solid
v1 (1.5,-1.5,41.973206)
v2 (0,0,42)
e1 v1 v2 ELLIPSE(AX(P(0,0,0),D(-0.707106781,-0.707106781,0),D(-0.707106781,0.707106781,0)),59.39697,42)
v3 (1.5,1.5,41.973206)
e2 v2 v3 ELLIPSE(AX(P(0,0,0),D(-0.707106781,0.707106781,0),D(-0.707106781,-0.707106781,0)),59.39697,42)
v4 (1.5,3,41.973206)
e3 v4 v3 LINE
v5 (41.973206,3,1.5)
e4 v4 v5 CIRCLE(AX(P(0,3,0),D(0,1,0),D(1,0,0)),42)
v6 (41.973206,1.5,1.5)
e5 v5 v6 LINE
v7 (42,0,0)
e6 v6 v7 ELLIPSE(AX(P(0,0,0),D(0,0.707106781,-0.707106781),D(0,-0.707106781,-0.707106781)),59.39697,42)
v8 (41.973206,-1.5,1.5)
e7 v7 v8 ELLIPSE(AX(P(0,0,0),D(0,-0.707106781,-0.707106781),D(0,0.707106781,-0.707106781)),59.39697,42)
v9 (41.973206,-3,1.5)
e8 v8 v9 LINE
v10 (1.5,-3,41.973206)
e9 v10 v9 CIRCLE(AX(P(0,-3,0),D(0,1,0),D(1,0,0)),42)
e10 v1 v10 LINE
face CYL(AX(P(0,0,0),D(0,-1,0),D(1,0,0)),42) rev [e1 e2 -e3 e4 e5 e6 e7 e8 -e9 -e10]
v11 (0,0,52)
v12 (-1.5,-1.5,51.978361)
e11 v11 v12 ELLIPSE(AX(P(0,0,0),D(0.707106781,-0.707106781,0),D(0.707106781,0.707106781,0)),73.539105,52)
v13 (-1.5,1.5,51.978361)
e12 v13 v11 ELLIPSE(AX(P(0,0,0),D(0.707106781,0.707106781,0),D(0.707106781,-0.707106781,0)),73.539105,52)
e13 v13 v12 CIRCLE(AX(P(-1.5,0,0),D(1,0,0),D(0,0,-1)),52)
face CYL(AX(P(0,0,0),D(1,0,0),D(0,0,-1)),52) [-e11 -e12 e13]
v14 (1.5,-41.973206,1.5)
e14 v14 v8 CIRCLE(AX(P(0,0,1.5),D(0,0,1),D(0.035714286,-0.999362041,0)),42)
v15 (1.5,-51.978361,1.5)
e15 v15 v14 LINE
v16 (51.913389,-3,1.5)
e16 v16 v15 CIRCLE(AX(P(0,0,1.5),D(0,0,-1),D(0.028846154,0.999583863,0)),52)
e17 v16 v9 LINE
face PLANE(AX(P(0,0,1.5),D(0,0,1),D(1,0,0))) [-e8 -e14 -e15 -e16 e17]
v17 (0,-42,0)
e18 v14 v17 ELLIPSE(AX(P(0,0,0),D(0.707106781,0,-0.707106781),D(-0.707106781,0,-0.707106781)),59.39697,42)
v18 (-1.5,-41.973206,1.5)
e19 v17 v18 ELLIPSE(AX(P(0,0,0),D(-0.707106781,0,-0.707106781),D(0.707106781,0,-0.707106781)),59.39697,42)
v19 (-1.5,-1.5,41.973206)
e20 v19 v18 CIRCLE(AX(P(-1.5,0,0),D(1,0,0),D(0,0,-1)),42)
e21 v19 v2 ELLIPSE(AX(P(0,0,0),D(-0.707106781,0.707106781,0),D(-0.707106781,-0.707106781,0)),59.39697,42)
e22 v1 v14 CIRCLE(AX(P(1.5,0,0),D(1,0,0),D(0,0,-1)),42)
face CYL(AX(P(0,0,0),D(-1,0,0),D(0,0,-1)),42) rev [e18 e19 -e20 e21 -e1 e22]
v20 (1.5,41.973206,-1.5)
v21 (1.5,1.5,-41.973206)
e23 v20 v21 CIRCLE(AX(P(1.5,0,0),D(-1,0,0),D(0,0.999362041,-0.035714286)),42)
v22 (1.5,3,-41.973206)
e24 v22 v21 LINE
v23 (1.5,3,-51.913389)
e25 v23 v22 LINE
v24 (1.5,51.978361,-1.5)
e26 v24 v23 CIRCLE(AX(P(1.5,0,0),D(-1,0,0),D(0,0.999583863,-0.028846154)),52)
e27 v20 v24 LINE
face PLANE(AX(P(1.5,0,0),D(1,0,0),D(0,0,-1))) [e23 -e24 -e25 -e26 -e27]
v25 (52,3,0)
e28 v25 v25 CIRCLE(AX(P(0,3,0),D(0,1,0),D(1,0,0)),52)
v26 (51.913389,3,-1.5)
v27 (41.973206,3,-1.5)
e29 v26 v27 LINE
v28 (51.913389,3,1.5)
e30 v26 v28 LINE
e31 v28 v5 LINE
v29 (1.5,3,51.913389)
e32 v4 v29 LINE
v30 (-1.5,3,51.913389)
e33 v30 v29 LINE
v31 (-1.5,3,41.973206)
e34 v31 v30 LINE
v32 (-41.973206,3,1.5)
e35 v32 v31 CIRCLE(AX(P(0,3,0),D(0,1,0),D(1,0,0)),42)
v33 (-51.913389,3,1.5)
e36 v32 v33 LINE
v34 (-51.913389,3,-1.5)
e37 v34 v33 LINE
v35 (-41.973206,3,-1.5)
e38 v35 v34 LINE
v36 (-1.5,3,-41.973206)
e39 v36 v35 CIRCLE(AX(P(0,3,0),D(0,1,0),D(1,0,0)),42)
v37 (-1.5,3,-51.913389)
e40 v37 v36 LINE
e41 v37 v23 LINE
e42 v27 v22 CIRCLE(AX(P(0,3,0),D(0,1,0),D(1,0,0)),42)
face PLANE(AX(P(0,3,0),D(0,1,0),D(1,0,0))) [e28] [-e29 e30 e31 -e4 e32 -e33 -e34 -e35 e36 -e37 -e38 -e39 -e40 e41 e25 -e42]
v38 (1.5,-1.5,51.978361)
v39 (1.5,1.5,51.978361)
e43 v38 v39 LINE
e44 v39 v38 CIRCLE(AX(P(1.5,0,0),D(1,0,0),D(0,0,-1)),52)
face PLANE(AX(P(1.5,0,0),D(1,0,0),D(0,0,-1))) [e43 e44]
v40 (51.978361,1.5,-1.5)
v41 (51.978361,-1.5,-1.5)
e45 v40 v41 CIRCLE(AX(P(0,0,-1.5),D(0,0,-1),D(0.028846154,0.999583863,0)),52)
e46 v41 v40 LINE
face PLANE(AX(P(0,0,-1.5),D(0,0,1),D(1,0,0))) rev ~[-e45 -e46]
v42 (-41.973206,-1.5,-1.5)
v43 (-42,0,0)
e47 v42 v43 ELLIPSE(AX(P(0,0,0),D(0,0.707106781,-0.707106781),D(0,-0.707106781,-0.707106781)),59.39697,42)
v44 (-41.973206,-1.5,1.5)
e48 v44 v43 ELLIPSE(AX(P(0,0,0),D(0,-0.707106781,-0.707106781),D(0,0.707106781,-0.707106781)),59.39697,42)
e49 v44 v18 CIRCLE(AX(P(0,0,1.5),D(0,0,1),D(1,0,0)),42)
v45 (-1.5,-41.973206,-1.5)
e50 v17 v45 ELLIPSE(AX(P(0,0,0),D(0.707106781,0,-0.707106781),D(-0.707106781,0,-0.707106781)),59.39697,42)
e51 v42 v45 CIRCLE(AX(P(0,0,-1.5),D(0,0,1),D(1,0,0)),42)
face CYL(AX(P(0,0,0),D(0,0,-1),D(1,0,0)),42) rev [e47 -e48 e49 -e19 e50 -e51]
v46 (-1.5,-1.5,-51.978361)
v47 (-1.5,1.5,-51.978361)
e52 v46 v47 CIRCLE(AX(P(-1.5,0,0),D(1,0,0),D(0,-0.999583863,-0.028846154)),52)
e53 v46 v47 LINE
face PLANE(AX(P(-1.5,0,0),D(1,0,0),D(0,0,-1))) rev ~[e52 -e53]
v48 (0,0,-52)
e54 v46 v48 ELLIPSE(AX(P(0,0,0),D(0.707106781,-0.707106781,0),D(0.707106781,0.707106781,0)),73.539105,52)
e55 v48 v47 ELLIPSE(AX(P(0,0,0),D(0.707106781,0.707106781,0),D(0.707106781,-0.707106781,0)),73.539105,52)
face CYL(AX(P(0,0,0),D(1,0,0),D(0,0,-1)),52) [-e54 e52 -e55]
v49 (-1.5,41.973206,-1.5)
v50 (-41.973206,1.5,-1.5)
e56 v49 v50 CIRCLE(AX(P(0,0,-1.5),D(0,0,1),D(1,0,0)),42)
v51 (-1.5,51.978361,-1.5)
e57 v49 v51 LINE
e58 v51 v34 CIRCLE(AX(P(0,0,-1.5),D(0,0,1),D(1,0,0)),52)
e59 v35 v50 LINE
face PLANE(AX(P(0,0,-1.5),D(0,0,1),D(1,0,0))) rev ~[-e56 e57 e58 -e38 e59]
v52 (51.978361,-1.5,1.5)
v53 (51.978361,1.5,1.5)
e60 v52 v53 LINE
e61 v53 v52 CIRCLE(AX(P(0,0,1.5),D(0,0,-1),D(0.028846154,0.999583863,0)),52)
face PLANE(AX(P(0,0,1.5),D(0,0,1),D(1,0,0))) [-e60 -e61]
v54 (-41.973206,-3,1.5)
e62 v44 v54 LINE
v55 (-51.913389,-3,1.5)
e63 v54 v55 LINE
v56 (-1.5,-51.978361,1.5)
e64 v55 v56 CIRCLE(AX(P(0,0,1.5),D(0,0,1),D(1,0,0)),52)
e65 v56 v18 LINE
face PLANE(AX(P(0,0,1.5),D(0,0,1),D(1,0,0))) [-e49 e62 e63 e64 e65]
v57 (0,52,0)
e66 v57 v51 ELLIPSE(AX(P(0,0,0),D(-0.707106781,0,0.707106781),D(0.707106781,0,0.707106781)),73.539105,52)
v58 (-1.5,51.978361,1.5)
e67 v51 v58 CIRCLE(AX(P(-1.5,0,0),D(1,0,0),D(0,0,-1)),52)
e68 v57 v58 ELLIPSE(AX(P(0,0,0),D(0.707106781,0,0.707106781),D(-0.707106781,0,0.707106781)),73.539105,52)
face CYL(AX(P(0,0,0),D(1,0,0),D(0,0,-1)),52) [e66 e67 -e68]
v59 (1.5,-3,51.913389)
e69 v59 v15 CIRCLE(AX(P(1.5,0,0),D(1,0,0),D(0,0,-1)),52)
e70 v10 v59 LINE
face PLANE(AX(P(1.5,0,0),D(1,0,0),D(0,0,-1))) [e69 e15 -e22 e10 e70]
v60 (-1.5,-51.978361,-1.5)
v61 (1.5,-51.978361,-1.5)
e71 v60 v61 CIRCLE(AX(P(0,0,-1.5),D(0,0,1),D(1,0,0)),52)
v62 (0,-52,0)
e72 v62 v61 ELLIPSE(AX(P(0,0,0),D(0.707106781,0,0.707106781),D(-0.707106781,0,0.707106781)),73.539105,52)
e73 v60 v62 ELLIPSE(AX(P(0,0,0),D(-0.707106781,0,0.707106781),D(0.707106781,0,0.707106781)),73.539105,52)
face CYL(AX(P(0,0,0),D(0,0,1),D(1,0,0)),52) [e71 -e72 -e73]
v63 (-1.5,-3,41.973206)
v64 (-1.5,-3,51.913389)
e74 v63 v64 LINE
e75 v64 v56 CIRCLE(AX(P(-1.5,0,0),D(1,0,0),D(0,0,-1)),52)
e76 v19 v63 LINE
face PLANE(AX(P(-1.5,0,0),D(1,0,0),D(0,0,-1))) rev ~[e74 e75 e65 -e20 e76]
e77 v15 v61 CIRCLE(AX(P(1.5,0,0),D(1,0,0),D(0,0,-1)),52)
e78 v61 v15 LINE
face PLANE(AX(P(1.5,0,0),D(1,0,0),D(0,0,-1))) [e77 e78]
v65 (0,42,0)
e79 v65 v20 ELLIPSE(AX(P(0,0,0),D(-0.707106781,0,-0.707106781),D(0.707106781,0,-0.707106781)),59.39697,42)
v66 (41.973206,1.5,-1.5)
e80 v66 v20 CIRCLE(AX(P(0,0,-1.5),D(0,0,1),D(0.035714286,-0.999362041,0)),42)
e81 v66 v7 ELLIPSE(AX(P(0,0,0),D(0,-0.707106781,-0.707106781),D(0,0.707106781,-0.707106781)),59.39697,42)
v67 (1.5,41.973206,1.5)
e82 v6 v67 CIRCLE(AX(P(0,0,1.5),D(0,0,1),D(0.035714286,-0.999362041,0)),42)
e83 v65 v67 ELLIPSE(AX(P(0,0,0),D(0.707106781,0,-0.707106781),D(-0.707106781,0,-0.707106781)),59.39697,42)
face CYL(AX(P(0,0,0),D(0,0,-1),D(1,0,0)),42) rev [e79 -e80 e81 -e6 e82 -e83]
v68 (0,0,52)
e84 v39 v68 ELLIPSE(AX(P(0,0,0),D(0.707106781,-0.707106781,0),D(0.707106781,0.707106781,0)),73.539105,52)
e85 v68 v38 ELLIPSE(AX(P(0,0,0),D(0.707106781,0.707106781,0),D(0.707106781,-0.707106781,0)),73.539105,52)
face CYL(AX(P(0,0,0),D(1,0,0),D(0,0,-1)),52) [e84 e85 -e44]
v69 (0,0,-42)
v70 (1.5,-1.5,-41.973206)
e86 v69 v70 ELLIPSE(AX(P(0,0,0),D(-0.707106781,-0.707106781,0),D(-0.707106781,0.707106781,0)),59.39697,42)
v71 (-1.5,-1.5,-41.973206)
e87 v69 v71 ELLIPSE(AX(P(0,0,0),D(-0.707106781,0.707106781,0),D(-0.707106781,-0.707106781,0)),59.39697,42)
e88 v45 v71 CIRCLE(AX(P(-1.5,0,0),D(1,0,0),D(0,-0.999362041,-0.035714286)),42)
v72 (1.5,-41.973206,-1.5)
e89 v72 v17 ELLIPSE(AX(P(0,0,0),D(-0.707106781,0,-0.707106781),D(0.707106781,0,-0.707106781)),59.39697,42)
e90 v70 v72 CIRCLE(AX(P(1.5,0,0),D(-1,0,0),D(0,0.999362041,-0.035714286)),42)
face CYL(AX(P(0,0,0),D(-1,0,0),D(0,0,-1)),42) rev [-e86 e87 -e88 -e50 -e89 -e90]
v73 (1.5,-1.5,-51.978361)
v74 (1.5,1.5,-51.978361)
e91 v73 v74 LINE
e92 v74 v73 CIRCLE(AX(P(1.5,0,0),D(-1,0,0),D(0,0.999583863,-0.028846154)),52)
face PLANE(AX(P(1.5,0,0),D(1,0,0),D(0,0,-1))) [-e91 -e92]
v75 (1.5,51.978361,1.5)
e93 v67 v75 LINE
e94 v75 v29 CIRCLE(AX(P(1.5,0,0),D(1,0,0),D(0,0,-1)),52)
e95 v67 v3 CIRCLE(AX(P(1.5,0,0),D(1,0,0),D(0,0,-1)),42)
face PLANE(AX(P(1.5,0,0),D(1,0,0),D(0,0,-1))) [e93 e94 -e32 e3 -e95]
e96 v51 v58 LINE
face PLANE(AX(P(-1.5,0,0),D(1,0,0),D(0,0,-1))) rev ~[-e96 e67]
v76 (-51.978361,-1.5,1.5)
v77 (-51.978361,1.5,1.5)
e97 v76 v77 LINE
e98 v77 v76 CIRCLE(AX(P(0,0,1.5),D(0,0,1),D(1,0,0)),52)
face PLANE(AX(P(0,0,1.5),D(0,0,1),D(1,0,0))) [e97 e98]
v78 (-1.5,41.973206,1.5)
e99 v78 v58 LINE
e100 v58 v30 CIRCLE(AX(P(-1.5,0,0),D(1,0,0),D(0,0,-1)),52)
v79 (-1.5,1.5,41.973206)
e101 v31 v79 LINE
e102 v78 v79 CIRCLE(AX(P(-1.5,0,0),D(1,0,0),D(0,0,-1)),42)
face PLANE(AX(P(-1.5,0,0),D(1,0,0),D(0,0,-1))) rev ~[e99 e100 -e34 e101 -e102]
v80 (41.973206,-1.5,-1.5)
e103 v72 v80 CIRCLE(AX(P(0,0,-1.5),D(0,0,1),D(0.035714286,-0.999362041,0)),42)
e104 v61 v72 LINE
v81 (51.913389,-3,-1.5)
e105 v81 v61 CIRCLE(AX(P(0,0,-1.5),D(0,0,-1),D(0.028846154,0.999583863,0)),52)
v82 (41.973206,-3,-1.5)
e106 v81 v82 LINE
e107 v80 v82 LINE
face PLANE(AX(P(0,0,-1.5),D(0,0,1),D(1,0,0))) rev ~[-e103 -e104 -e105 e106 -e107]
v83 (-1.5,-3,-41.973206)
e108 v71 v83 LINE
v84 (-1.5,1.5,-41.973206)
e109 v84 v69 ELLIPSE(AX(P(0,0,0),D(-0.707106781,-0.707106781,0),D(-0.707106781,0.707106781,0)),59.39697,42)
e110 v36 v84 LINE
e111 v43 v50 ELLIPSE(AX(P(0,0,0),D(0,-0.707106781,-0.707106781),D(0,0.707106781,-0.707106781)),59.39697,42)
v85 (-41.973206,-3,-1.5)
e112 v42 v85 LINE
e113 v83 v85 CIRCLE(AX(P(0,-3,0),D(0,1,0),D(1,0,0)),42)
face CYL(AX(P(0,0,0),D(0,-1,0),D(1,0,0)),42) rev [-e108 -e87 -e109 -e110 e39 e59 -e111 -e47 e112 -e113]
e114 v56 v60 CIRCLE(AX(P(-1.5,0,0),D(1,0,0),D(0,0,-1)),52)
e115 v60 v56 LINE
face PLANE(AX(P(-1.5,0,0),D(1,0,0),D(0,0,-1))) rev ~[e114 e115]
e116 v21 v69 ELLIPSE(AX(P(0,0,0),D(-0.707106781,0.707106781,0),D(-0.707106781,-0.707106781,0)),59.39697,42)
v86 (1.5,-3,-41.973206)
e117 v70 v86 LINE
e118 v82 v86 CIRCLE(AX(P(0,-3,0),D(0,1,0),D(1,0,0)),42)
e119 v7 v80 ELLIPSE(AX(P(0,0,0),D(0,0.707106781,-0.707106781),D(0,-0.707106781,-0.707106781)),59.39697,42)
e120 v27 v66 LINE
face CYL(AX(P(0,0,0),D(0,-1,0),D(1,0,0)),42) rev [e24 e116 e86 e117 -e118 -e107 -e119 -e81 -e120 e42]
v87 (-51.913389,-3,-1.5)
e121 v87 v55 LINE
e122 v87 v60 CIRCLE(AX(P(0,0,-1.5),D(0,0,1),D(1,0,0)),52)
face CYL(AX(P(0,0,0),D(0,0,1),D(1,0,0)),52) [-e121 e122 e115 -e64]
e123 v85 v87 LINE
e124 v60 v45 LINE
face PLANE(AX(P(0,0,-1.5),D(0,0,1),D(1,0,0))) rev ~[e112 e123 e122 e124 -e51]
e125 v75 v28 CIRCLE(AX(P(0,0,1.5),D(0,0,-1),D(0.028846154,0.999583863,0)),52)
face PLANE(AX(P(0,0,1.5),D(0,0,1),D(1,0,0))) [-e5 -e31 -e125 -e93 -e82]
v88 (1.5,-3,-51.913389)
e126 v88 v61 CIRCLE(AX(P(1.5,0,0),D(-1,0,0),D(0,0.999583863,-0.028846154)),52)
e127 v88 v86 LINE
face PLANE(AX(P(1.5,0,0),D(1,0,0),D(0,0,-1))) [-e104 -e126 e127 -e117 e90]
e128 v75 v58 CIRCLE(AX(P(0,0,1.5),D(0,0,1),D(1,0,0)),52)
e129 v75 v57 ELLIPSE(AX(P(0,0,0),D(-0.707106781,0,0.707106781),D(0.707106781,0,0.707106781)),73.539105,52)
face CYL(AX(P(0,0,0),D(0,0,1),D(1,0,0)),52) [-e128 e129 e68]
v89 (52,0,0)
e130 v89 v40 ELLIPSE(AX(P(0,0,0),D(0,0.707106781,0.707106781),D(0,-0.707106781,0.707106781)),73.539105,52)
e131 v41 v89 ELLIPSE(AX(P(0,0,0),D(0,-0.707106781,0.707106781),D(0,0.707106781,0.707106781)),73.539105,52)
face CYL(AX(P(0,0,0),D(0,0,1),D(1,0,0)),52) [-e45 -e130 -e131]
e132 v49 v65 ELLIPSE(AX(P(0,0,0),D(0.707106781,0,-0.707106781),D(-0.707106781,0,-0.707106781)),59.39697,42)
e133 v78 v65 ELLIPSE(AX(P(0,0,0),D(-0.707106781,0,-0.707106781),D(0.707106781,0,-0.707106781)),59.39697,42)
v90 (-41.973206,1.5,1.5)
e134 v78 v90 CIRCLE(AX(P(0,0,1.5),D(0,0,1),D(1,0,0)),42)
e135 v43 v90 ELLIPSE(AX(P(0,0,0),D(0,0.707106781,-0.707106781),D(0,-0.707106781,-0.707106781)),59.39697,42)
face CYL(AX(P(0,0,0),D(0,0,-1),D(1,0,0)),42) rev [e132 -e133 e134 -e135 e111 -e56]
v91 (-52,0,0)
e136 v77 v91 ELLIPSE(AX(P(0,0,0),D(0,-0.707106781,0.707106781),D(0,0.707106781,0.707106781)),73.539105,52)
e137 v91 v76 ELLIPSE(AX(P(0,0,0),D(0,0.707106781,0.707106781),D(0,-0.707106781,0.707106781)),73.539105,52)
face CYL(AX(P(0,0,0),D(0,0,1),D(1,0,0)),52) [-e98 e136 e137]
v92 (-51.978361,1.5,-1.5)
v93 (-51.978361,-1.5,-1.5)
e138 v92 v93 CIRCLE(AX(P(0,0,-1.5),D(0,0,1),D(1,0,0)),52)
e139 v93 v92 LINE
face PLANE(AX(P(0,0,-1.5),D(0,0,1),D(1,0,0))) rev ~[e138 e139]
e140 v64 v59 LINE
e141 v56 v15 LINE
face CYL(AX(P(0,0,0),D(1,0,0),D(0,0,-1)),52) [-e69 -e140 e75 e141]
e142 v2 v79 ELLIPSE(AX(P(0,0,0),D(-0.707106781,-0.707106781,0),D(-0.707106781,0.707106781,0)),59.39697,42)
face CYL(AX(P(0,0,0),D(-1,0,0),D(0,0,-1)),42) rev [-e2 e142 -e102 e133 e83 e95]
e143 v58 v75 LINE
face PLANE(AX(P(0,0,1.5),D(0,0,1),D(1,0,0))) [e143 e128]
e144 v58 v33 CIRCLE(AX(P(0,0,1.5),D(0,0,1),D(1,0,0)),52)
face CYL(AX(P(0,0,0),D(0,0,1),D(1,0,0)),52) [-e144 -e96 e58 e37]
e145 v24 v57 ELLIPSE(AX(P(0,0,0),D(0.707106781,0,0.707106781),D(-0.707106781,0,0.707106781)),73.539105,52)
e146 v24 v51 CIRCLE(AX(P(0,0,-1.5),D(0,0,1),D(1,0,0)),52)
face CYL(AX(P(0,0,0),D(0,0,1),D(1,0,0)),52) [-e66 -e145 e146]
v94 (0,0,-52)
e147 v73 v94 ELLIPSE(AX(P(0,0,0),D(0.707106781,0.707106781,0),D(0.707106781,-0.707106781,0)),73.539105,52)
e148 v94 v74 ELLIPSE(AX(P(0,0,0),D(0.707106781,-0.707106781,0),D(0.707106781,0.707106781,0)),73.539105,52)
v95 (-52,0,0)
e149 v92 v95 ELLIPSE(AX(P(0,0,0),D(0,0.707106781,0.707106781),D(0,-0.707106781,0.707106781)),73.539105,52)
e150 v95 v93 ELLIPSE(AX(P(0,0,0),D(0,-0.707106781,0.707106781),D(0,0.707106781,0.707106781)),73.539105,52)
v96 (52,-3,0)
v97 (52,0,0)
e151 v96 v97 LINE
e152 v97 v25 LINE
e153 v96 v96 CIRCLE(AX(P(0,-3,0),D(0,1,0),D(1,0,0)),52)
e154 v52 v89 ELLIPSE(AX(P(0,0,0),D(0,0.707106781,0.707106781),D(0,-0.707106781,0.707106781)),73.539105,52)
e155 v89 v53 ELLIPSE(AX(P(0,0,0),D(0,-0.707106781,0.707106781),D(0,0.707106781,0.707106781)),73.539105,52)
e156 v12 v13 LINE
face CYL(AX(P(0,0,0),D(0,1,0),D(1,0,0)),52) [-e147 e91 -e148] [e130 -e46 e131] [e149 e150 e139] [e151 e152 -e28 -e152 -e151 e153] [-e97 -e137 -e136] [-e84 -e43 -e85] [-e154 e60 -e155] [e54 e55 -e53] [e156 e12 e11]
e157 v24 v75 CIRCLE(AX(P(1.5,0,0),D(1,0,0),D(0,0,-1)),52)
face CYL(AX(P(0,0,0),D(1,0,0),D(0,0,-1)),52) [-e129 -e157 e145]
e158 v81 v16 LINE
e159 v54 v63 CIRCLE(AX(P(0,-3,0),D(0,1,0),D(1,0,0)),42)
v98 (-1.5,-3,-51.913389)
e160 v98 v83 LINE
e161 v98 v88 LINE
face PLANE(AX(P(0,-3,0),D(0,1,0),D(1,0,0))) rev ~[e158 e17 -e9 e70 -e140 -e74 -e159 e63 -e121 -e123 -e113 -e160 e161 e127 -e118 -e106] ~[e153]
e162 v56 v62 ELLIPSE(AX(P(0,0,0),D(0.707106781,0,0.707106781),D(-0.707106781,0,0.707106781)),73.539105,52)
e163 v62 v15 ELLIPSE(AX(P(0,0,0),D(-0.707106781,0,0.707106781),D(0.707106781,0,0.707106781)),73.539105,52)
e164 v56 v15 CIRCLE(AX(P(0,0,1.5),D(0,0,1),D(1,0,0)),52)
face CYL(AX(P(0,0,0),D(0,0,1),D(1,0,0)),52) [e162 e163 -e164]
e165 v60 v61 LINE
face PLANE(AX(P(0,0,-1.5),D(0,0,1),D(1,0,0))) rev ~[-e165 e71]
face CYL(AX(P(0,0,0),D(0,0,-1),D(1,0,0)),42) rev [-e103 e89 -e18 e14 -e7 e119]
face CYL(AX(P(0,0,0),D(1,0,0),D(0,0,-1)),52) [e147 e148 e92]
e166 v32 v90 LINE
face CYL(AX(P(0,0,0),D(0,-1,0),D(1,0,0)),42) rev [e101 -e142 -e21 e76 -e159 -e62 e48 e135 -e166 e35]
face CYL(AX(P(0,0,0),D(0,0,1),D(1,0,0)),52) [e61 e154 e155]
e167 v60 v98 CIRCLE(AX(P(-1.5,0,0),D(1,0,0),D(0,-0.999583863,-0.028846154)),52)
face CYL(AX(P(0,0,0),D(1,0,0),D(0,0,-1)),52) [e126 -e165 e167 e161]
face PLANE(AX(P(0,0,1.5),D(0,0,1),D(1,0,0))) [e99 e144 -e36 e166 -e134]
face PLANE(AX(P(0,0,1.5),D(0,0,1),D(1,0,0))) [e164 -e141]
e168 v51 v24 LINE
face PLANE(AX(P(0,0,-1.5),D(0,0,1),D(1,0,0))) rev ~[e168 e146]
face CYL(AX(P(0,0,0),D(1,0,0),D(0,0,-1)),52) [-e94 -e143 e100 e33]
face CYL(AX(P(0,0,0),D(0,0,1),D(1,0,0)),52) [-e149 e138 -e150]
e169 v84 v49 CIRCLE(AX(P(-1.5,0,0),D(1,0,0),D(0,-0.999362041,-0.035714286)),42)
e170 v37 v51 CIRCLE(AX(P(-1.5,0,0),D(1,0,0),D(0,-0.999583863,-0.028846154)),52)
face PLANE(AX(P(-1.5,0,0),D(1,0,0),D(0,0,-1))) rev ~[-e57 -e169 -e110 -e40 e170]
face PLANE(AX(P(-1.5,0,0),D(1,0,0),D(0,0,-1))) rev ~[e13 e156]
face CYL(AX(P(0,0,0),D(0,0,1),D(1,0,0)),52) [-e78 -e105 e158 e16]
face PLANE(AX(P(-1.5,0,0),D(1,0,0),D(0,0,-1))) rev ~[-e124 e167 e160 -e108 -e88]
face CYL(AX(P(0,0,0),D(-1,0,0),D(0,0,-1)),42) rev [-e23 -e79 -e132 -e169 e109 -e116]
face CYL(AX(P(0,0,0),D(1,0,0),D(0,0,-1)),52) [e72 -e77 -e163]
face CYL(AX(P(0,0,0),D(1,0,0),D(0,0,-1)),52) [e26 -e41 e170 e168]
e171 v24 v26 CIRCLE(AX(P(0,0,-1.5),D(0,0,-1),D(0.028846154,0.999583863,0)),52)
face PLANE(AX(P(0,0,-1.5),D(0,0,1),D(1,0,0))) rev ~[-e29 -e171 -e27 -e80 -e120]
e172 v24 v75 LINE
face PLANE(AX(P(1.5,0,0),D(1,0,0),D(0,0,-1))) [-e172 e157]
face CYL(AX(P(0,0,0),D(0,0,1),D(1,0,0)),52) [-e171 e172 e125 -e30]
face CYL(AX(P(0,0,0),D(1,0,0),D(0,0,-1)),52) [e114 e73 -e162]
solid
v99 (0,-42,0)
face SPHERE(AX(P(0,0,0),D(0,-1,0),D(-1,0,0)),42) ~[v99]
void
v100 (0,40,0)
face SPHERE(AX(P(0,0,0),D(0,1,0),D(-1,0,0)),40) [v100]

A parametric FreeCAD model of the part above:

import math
import FreeCAD as App
import Part
import Sketcher

V = App.Vector
Q = App.Units.Quantity

doc = App.newDocument("Part")
body = doc.addObject("PartDesign::Body", "Body")

# Sketch on XY plane
sketch1 = body.newObject("Sketcher::SketchObject", "Sketch")
sketch1.AttachmentSupport = (doc.getObject("XY_Plane"), [""])
sketch1.MapMode = "FlatFace"
sketch1.addGeometry([
    Part.LineSegment(V(0, 40, 0), V(0, 42, 0)),
    Part.ArcOfCircle(Part.Circle(V(0, 0, 0), V(0, 0, 1), 42), math.radians(90), math.radians(270)),
    Part.LineSegment(V(0, -42, 0), V(0, -40, 0)),
    Part.ArcOfCircle(Part.Circle(V(0, 0, 0), V(0, 0, 1), 40), math.radians(90), math.radians(270)),
], False)
sketch1.addConstraint([
    Sketcher.Constraint("Coincident", 0, 2, 1, 1),
    Sketcher.Constraint("Coincident", 1, 2, 2, 1),
    Sketcher.Constraint("Coincident", 2, 2, 3, 2),
    Sketcher.Constraint("Coincident", 3, 1, 0, 1),
    Sketcher.Constraint("Vertical", 0),
    Sketcher.Constraint("Vertical", 2),
    Sketcher.Constraint("Coincident", 1, 3, -1, 1),
    Sketcher.Constraint("Coincident", 3, 3, -1, 1),
    Sketcher.Constraint("PointOnObject", 0, 2, -2),
    Sketcher.Constraint("PointOnObject", 1, 2, -2),
    Sketcher.Constraint("Radius", 1, Q("42 mm")),
    Sketcher.Constraint("Radius", 3, Q("40 mm")),
])
revolution = body.newObject("PartDesign::Revolution", "Revolution")
revolution.Profile = sketch1
revolution.ReferenceAxis = (sketch1, ["V_Axis"])
revolution.Angle = 360
body2 = doc.addObject("PartDesign::Body", "Body001")

# Sketch on XY plane
sketch2 = body2.newObject("Sketcher::SketchObject", "Sketch001")
sketch2.AttachmentSupport = (doc.getObject("XY_Plane001"), [""])
sketch2.MapMode = "FlatFace"
sketch2.addGeometry([
    Part.Circle(V(0, 0, 0), V(0, 0, 1), 52),
    Part.Circle(V(0, 0, 0), V(0, 0, 1), 42),
], False)
sketch2.addConstraint([
    Sketcher.Constraint("Coincident", 0, 3, -1, 1),
    Sketcher.Constraint("Coincident", 1, 3, -1, 1),
    Sketcher.Constraint("Diameter", 0, Q("104 mm")),
    Sketcher.Constraint("Diameter", 1, Q("84 mm")),
])
pad1 = body2.newObject("PartDesign::Pad", "Pad")
pad1.Profile = sketch2
pad1.Length = 3
pad1.Midplane = True

# Sketch on YZ plane
sketch3 = body2.newObject("Sketcher::SketchObject", "Sketch002")
sketch3.AttachmentSupport = (doc.getObject("YZ_Plane001"), [""])
sketch3.MapMode = "FlatFace"
sketch3.addGeometry([
    Part.Circle(V(0, 0, 0), V(0, 0, 1), 52),
    Part.Circle(V(0, 0, 0), V(0, 0, 1), 42),
], False)
sketch3.addConstraint([
    Sketcher.Constraint("Coincident", 0, 3, -1, 1),
    Sketcher.Constraint("Coincident", 1, 3, -1, 1),
    Sketcher.Constraint("Diameter", 0, Q("104 mm")),
    Sketcher.Constraint("Diameter", 1, Q("84 mm")),
])
pad2 = body2.newObject("PartDesign::Pad", "Pad001")
pad2.Profile = sketch3
pad2.Length = 3
pad2.Midplane = True

# Sketch on XZ plane
sketch4 = body2.newObject("Sketcher::SketchObject", "Sketch003")
sketch4.AttachmentSupport = (doc.getObject("XZ_Plane001"), [""])
sketch4.MapMode = "FlatFace"
sketch4.addGeometry([
    Part.Circle(V(0, 0, 0), V(0, 0, 1), 52),
    Part.Circle(V(0, 0, 0), V(0, 0, 1), 42),
], False)
sketch4.addConstraint([
    Sketcher.Constraint("Coincident", 0, 3, -1, 1),
    Sketcher.Constraint("Coincident", 1, 3, -1, 1),
    Sketcher.Constraint("Diameter", 0, Q("104 mm")),
    Sketcher.Constraint("Diameter", 1, Q("84 mm")),
])
pad3 = body2.newObject("PartDesign::Pad", "Pad002")
pad3.Profile = sketch4
pad3.Length = 6
pad3.Midplane = True

doc.recompute()
